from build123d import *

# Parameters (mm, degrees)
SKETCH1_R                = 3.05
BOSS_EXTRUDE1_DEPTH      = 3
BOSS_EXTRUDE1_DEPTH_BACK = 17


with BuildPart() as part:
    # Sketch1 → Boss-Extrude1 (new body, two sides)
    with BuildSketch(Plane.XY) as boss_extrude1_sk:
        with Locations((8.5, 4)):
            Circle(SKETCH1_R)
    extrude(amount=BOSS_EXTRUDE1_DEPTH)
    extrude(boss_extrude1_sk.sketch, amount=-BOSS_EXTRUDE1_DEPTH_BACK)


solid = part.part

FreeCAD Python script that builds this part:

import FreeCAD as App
import Part
import Sketcher

doc = App.newDocument("Part")
body = doc.addObject("PartDesign::Body", "Body")

sketch1 = body.newObject("Sketcher::SketchObject", "Sketch")
sketch1.AttachmentSupport = (doc.getObject("XY_Plane"), [""])
sketch1.MapMode = "FlatFace"
sketch1.addGeometry(Part.Circle(App.Vector(8.5, 4, 0), App.Vector(0, 0, 1), 3), False)
sketch1.addConstraint(Sketcher.Constraint("Diameter", 0, 6.1))
sketch1.addConstraint(Sketcher.Constraint("DistanceY", -1, 1, 0, 3, 4.0))
sketch1.addConstraint(Sketcher.Constraint("DistanceX", -1, 1, 0, 3, 8.5))
pad1 = body.newObject("PartDesign::Pad", "Pad")
pad1.Profile = sketch1
pad1.Type = "TwoLengths"
pad1.Length = 3
pad1.Length2 = 17

doc.recompute()
